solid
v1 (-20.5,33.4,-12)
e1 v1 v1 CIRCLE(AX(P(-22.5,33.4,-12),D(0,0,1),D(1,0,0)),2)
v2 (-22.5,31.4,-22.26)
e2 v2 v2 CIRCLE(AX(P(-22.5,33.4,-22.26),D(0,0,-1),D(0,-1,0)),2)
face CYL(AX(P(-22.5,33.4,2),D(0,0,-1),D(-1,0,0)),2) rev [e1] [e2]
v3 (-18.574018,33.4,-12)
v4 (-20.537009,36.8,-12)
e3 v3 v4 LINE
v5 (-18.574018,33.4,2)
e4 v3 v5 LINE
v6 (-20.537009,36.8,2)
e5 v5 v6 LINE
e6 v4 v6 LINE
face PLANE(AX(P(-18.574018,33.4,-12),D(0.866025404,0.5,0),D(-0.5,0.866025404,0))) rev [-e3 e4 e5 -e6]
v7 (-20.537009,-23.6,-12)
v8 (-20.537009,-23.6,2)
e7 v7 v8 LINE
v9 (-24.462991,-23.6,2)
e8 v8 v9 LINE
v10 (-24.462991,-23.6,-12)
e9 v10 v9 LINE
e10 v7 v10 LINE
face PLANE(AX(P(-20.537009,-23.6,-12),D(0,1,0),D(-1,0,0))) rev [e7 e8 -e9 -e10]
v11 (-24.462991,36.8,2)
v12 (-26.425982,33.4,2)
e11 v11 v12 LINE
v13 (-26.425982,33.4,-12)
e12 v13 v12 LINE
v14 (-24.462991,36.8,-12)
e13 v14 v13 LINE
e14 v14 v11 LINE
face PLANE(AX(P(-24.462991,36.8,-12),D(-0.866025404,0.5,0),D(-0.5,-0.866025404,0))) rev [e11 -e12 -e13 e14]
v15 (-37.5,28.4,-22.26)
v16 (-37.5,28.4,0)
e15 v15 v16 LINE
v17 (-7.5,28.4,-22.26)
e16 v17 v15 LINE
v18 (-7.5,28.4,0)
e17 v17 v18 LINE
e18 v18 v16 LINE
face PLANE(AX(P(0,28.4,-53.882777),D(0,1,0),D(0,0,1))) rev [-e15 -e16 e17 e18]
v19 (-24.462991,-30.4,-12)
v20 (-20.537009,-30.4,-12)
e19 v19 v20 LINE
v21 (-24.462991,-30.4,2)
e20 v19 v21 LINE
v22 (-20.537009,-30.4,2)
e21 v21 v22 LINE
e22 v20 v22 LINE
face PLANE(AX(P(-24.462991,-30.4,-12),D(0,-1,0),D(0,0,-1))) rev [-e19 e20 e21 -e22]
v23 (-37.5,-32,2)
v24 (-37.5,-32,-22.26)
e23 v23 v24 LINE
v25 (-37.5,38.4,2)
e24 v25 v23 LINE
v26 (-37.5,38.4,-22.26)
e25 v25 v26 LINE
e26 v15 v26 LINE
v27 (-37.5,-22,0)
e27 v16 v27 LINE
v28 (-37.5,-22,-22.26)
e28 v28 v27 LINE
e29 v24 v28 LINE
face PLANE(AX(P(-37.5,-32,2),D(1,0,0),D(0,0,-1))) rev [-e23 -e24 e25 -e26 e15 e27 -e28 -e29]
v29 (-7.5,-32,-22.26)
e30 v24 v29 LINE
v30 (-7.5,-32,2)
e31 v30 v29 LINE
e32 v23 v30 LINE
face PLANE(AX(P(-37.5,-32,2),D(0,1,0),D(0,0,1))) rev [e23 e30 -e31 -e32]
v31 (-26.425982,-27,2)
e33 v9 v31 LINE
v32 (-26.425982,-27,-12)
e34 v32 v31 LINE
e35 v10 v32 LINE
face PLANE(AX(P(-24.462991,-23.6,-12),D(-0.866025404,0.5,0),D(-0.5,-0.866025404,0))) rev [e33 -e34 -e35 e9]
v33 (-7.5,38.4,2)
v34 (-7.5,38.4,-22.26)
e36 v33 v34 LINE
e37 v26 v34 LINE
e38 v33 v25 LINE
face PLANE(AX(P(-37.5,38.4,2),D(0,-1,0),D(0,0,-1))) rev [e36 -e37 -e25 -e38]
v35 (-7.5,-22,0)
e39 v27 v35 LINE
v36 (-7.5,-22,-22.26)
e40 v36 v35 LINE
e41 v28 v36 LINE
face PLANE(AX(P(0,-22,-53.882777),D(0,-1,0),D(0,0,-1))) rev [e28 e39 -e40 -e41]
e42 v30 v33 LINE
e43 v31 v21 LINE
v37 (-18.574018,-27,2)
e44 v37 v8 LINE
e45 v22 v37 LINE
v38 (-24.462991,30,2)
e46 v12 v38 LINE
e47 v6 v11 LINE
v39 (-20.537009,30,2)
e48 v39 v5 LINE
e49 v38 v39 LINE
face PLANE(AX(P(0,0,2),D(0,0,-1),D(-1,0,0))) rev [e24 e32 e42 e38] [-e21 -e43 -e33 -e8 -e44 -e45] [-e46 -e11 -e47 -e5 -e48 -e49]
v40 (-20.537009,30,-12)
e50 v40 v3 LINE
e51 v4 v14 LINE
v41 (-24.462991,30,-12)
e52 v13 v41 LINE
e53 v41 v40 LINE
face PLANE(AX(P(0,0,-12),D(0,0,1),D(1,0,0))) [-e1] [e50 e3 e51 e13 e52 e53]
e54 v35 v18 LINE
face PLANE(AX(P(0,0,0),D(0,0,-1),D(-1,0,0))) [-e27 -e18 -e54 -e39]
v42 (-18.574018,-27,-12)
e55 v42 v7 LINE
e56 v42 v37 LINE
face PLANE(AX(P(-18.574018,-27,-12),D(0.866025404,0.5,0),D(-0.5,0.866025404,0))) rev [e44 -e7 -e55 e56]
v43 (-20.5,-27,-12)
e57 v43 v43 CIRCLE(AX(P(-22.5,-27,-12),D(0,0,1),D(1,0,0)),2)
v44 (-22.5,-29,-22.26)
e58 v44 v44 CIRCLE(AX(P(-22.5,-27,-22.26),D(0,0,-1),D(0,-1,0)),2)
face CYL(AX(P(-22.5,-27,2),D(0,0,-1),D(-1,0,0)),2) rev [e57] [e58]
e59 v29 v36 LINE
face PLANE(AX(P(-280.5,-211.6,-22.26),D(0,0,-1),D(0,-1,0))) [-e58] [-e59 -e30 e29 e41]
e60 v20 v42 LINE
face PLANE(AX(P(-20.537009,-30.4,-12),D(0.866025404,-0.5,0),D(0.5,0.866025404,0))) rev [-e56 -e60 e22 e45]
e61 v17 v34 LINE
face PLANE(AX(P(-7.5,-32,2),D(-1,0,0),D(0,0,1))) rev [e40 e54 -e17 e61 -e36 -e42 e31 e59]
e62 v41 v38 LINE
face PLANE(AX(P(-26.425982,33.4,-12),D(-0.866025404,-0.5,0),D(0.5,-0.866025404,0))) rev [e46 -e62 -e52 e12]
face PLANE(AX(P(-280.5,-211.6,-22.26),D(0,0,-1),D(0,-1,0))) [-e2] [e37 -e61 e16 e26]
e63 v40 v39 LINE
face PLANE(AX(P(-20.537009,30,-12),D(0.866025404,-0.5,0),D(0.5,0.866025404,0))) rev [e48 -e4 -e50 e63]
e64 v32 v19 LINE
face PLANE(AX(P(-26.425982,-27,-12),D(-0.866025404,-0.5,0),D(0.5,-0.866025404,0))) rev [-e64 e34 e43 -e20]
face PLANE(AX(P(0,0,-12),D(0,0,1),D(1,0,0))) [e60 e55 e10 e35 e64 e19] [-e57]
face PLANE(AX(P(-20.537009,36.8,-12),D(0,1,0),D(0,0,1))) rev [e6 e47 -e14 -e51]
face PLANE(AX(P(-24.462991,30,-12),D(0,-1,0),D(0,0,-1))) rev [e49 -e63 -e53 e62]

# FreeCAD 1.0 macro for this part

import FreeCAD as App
import Part
import Sketcher
from FreeCAD import Vector
Q = App.Units.Quantity


def add_polygon(sketch, points):
    """Adds a closed chain of lines whose ends are joined by coincident constraints."""
    first, n = sketch.GeometryCount, len(points)
    for a, b in zip(points, points[1:] + points[:1]):
        sketch.addGeometry(Part.LineSegment(App.Vector(*a, 0), App.Vector(*b, 0)), False)
    for i in range(n):
        sketch.addConstraint(Sketcher.Constraint("Coincident", first + i, 2, first + (i + 1) % n, 1))

doc = App.newDocument("Part")
body = doc.addObject("PartDesign::Body", "Body")

# Sketch on XY plane
sketch1 = body.newObject("Sketcher::SketchObject", "Sketch")
sketch1.AttachmentSupport = (doc.getObject("XY_Plane"), [""])
sketch1.MapMode = "FlatFace"
add_polygon(sketch1, [(-37.5, 38.4), (-37.5, -32), (-7.5, -32), (-7.5, 38.4)])  # lines 0-3
sketch1.addGeometry(Part.Circle(Vector(-22.5, -27, 0), Vector(0, 0, 1), 2), False)  # 4
sketch1.addGeometry(Part.Circle(Vector(-22.5, 33.4, 0), Vector(0, 0, 1), 2), False)  # 5
sketch1.addConstraint(Sketcher.Constraint("Vertical", 0))
sketch1.addConstraint(Sketcher.Constraint("Horizontal", 1))
sketch1.addConstraint(Sketcher.Constraint("Vertical", 2))
sketch1.addConstraint(Sketcher.Constraint("Horizontal", 3))
sketch1.addConstraint(Sketcher.Constraint("Equal", 4, 5))
sketch1.addConstraint(Sketcher.Constraint("Vertical", 4, 3, 5, 3))
sketch1.addConstraint(Sketcher.Constraint("Diameter", 4, 4.0))
sketch1.addConstraint(Sketcher.Constraint("DistanceX", 1, 1, 1, 2, 30.0))
sketch1.addConstraint(Sketcher.Constraint("DistanceY", 0, 2, 0, 1, 70.4))
sketch1.addConstraint(Sketcher.Constraint("DistanceY", 4, 3, -1, 1, 27.0))
sketch1.addConstraint(Sketcher.Constraint("DistanceY", 0, 2, -1, 1, 32.0))
sketch1.addConstraint(Sketcher.Constraint("DistanceX", 0, 2, 4, 3, 15.0))
sketch1.addConstraint(Sketcher.Constraint("DistanceY", 5, 3, 2, 2, 5.0))
sketch1.addConstraint(Sketcher.Constraint("DistanceX", 4, 3, -1, 1, 22.5))
pad1 = body.newObject("PartDesign::Pad", "Pad")
pad1.Profile = sketch1
pad1.Length = 2

# Sketch on XY plane
sketch2 = body.newObject("Sketcher::SketchObject", "Sketch001")
sketch2.AttachmentSupport = (doc.getObject("XY_Plane"), [""])
sketch2.MapMode = "FlatFace"
sketch2.AttachmentOffset = App.Placement(Vector(0, 0, -22.26), App.Rotation())
add_polygon(sketch2, [(-37.5, -22), (-37.5, -32), (-7.5, -32), (-7.5, -22)])  # lines 0-3
sketch2.addGeometry(Part.Circle(Vector(-22.5, -27, 0), Vector(0, 0, 1), 2), False)  # 4
add_polygon(sketch2, [(-37.5, 38.4), (-37.5, 28.4), (-7.5, 28.4), (-7.5, 38.4)])  # lines 5-8
sketch2.addGeometry(Part.Circle(Vector(-22.5, 33.4, 0), Vector(0, 0, 1), 2), False)  # 9
sketch2.addConstraint(Sketcher.Constraint("Vertical", 0))
sketch2.addConstraint(Sketcher.Constraint("Horizontal", 1))
sketch2.addConstraint(Sketcher.Constraint("Vertical", 2))
sketch2.addConstraint(Sketcher.Constraint("Horizontal", 3))
sketch2.addConstraint(Sketcher.Constraint("Vertical", 5))
sketch2.addConstraint(Sketcher.Constraint("Horizontal", 6))
sketch2.addConstraint(Sketcher.Constraint("Vertical", 7))
sketch2.addConstraint(Sketcher.Constraint("Horizontal", 8))
sketch2.addConstraint(Sketcher.Constraint("Equal", 4, 9))
sketch2.addConstraint(Sketcher.Constraint("Vertical", 4, 3, 9, 3))
sketch2.addConstraint(Sketcher.Constraint("Vertical", 3, 2, 5, 2))
sketch2.addConstraint(Sketcher.Constraint("Vertical", 2, 2, 6, 2))
sketch2.addConstraint(Sketcher.Constraint("Equal", 2, 5))
sketch2.addConstraint(Sketcher.Constraint("Diameter", 4, 4.0))
sketch2.addConstraint(Sketcher.Constraint("DistanceX", 1, 1, 1, 2, 30.0))
sketch2.addConstraint(Sketcher.Constraint("DistanceY", 0, 2, 0, 1, 10.0))
sketch2.addConstraint(Sketcher.Constraint("DistanceY", 4, 3, -1, 1, 27.0))
sketch2.addConstraint(Sketcher.Constraint("DistanceY", 0, 2, -1, 1, 32.0))
sketch2.addConstraint(Sketcher.Constraint("DistanceX", 0, 2, 4, 3, 15.0))
sketch2.addConstraint(Sketcher.Constraint("DistanceY", 5, 2, 9, 3, 5.0))
sketch2.addConstraint(Sketcher.Constraint("DistanceX", 4, 3, -1, 1, 22.5))
sketch2.addConstraint(Sketcher.Constraint("DistanceY", -1, 1, 9, 3, 33.4))
pad2 = body.newObject("PartDesign::Pad", "Pad001")
pad2.Profile = sketch2
pad2.Length = 22.26

# Sketch on XY plane
sketch3 = body.newObject("Sketcher::SketchObject", "Sketch002")
sketch3.AttachmentSupport = (doc.getObject("XY_Plane"), [""])
sketch3.MapMode = "FlatFace"
sketch3.AttachmentOffset = App.Placement(Vector(0, 0, 2), App.Rotation())
add_polygon(sketch3, [(-24.462991, 30), (-20.537009, 30), (-18.574018, 33.4), (-20.537009, 36.8), (-24.462991, 36.8), (-26.425982, 33.4)])  # lines 0-5
add_polygon(sketch3, [(-20.537009, -30.4), (-18.574018, -27), (-20.537009, -23.6), (-24.462991, -23.6), (-26.425982, -27), (-24.462991, -30.4)])  # lines 6-11
sketch3.addConstraint(Sketcher.Constraint("Horizontal", 0))
sketch3.addConstraint(Sketcher.Constraint("Horizontal", 3))
sketch3.addConstraint(Sketcher.Constraint("Horizontal", 8))
sketch3.addConstraint(Sketcher.Constraint("Horizontal", 11))
sketch3.addConstraint(Sketcher.Constraint("Parallel", 1, 4))
sketch3.addConstraint(Sketcher.Constraint("Parallel", 2, 5))
sketch3.addConstraint(Sketcher.Constraint("Parallel", 4, 6))
sketch3.addConstraint(Sketcher.Constraint("Parallel", 5, 7))
sketch3.addConstraint(Sketcher.Constraint("Parallel", 6, 9))
sketch3.addConstraint(Sketcher.Constraint("Parallel", 7, 10))
sketch3.addConstraint(Sketcher.Constraint("Horizontal", 1, 2, 4, 2))
sketch3.addConstraint(Sketcher.Constraint("Horizontal", 6, 2, 9, 2))
sketch3.addConstraint(Sketcher.Constraint("Vertical", 0, 2, 2, 2))
sketch3.addConstraint(Sketcher.Constraint("Vertical", 3, 2, 5, 2))
sketch3.addConstraint(Sketcher.Constraint("Vertical", 1, 2, 6, 2))
sketch3.addConstraint(Sketcher.Constraint("Vertical", 2, 2, 7, 2))
sketch3.addConstraint(Sketcher.Constraint("Vertical", 5, 2, 8, 2))
sketch3.addConstraint(Sketcher.Constraint("Vertical", 8, 2, 10, 2))
sketch3.addConstraint(Sketcher.Constraint("Angle", 1, Q("60 deg")))
sketch3.addConstraint(Sketcher.Constraint("DistanceY", -1, 1, 0, 2, 30.0))
sketch3.addConstraint(Sketcher.Constraint("DistanceY", 6, 2, -1, 1, 27.0))
sketch3.addConstraint(Sketcher.Constraint("DistanceY", -1, 1, 1, 2, 33.4))
sketch3.addConstraint(Sketcher.Constraint("DistanceX", 0, 1, 0, 2, 3.925982))
sketch3.addConstraint(Sketcher.Constraint("DistanceX", 0, 2, -1, 1, 20.537009))
pocket1 = body.newObject("PartDesign::Pocket", "Pocket")
pocket1.Profile = sketch3
pocket1.Length = 14

doc.recompute()
